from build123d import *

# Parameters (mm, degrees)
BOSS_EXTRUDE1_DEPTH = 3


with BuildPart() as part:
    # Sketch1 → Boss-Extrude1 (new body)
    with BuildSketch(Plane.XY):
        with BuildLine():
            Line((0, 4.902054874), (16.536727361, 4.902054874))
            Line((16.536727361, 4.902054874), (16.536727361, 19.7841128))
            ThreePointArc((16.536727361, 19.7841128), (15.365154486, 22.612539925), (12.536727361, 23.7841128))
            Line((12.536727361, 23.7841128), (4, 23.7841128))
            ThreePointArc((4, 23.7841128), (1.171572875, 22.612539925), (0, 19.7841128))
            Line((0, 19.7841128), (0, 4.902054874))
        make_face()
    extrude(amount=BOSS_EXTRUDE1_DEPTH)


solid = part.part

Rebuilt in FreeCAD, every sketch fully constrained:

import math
import FreeCAD as App
import Part
import Sketcher
Q = App.Units.Quantity

doc = App.newDocument("Part")
body = doc.addObject("PartDesign::Body", "Body")

sketch1 = body.newObject("Sketcher::SketchObject", "Sketch")
sketch1.AttachmentSupport = (doc.getObject("XY_Plane"), [""])
sketch1.MapMode = "FlatFace"
sketch1.addGeometry([
    Part.LineSegment(App.Vector(0, 4.902055, 0), App.Vector(16.536727, 4.902055, 0)),
    Part.LineSegment(App.Vector(16.536727, 4.902055, 0), App.Vector(16.536727, 19.784113, 0)),
    Part.ArcOfCircle(Part.Circle(App.Vector(12.536727, 19.784113, 0), App.Vector(0, 0, 1), 4), math.radians(0), math.radians(90)),
    Part.LineSegment(App.Vector(12.536727, 23.784113, 0), App.Vector(4, 23.784113, 0)),
    Part.ArcOfCircle(Part.Circle(App.Vector(4, 19.784113, 0), App.Vector(0, 0, 1), 4), math.radians(90), math.radians(180)),
    Part.LineSegment(App.Vector(0, 19.784113, 0), App.Vector(0, 4.902055, 0)),
], False)
sketch1.addConstraint([
    Sketcher.Constraint("Coincident", 0, 2, 1, 1),
    Sketcher.Constraint("Tangent", 1, 2, 2, 1),
    Sketcher.Constraint("Tangent", 2, 2, 3, 1),
    Sketcher.Constraint("Tangent", 3, 2, 4, 1),
    Sketcher.Constraint("Tangent", 4, 2, 5, 1),
    Sketcher.Constraint("Coincident", 5, 2, 0, 1),
    Sketcher.Constraint("Horizontal", 0),
    Sketcher.Constraint("Vertical", 1),
    Sketcher.Constraint("Horizontal", 3),
    Sketcher.Constraint("Vertical", 5),
    Sketcher.Constraint("Equal", 2, 4),
    Sketcher.Constraint("PointOnObject", 4, 2, -2),
    Sketcher.Constraint("Radius", 2, Q("4 mm")),
    Sketcher.Constraint("DistanceX", 0, 1, 0, 2, Q("16.536727 mm")),
    Sketcher.Constraint("DistanceY", 1, 1, 1, 2, Q("14.882058 mm")),
    Sketcher.Constraint("DistanceY", -1, 1, 2, 3, Q("19.784113 mm")),
])
pad1 = body.newObject("PartDesign::Pad", "Pad")
pad1.Profile = sketch1
pad1.Length = 3

doc.recompute()
